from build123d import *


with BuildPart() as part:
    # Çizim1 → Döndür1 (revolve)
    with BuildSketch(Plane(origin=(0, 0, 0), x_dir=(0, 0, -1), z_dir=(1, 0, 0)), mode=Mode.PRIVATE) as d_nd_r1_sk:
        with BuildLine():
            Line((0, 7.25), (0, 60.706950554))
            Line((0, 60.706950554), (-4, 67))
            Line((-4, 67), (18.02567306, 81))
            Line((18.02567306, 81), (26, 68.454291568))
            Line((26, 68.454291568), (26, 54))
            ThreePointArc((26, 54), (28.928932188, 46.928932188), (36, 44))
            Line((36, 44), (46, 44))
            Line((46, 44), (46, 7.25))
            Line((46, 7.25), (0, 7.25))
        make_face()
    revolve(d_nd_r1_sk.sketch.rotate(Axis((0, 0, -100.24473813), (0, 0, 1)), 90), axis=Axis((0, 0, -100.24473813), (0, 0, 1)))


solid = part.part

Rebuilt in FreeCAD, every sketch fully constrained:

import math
import FreeCAD as App
import Part
import Sketcher
Q = App.Units.Quantity

doc = App.newDocument("Part")
body = doc.addObject("PartDesign::Body", "Body")

# Sketch on YZ plane
sketch1 = body.newObject("Sketcher::SketchObject", "Sketch")
sketch1.AttachmentSupport = (doc.getObject("YZ_Plane"), [""])
sketch1.MapMode = "FlatFace"
sketch1.addGeometry([
    Part.LineSegment(App.Vector(61, 0, 0), App.Vector(7, 0, 0)),  # 0
    Part.LineSegment(App.Vector(7, 0, 0), App.Vector(7, -46, 0)),  # 1
    Part.LineSegment(App.Vector(7, -46, 0), App.Vector(44, -46, 0)),  # 2
    Part.LineSegment(App.Vector(44, -46, 0), App.Vector(44, -36, 0)),  # 3
    Part.ArcOfCircle(Part.Circle(App.Vector(54, -36, 0), App.Vector(0, 0, 1), 10), math.radians(90), math.radians(180)),  # 4
    Part.LineSegment(App.Vector(54, -26, 0), App.Vector(68, -26, 0)),  # 5
    Part.LineSegment(App.Vector(68, -26, 0), App.Vector(81, -18, 0)),  # 6
    Part.LineSegment(App.Vector(81, -18, 0), App.Vector(67, 4, 0)),  # 7
    Part.LineSegment(App.Vector(67, 4, 0), App.Vector(61, 0, 0)),  # 8
], False)
sketch1.addConstraint([
    Sketcher.Constraint("Coincident", 0, 2, 1, 1),
    Sketcher.Constraint("Coincident", 1, 2, 2, 1),
    Sketcher.Constraint("Coincident", 2, 2, 3, 1),
    Sketcher.Constraint("Tangent", 3, 2, 4, 2),
    Sketcher.Constraint("Tangent", 4, 1, 5, 1),
    Sketcher.Constraint("Coincident", 5, 2, 6, 1),
    Sketcher.Constraint("Coincident", 6, 2, 7, 1),
    Sketcher.Constraint("Coincident", 7, 2, 8, 1),
    Sketcher.Constraint("Coincident", 8, 2, 0, 1),
    Sketcher.Constraint("Horizontal", 0),
    Sketcher.Constraint("Vertical", 1),
    Sketcher.Constraint("Horizontal", 2),
    Sketcher.Constraint("Vertical", 3),
    Sketcher.Constraint("Horizontal", 5),
    Sketcher.Constraint("PointOnObject", 0, 2, -1),
    Sketcher.Constraint("Perpendicular", 6, 7),
    Sketcher.Constraint("Perpendicular", 7, 8),
    Sketcher.Constraint("Radius", 4, Q("10 mm")),
    Sketcher.Constraint("DistanceY", 1, 2, 1, 1, Q("46 mm")),
    Sketcher.Constraint("DistanceY", 3, 1, 3, 2, Q("10 mm")),
    Sketcher.Constraint("DistanceX", -1, 1, 4, 3, Q("54 mm")),
    Sketcher.Constraint("DistanceX", -1, 1, 6, 2, Q("81 mm")),
    Sketcher.Constraint("DistanceX", -1, 1, 7, 2, Q("67 mm")),
    Sketcher.Constraint("DistanceY", -1, 1, 7, 2, Q("4 mm")),
    Sketcher.Constraint("DistanceX", 2, 1, 2, 2, Q("36.75 mm")),
    Sketcher.Constraint("DistanceX", 0, 2, 0, 1, Q("53.456951 mm")),
])
revolution = body.newObject("PartDesign::Revolution", "Revolution")
revolution.Profile = sketch1
revolution.ReferenceAxis = (sketch1, ["V_Axis"])
revolution.Angle = 360

doc.recompute()
